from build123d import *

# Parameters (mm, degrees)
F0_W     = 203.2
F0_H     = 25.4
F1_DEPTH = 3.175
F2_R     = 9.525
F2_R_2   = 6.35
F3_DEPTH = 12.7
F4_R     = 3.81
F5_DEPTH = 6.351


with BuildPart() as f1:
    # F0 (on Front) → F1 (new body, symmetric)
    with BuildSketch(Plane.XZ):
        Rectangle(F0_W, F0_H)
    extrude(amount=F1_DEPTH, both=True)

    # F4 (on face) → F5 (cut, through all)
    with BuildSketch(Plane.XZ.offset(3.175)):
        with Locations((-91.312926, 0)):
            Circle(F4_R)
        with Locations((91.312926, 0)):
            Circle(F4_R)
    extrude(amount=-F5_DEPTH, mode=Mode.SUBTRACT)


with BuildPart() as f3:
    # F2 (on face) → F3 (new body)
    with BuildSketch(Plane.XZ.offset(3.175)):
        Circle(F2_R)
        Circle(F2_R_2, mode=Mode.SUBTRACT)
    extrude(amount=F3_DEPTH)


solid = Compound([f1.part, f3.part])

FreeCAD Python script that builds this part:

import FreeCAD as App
import Part
import Sketcher
from FreeCAD import Vector
Q = App.Units.Quantity


def add_polygon(sketch, points):
    """Adds a closed chain of lines whose ends are joined by coincident constraints."""
    first, n = sketch.GeometryCount, len(points)
    for a, b in zip(points, points[1:] + points[:1]):
        sketch.addGeometry(Part.LineSegment(App.Vector(*a, 0), App.Vector(*b, 0)), False)
    for i in range(n):
        sketch.addConstraint(Sketcher.Constraint("Coincident", first + i, 2, first + (i + 1) % n, 1))

doc = App.newDocument("Part")
body = doc.addObject("PartDesign::Body", "Body")

# Sketch on XZ plane
sketch1 = doc.addObject("Sketcher::SketchObject", "Sketch")
body.addObject(sketch1)
sketch1.AttachmentSupport = (doc.XZ_Plane, [""])
sketch1.MapMode = "FlatFace"
add_polygon(sketch1, [(-102, 13), (-102, -13), (102, -13), (102, 13)])  # lines 0-3
sketch1.addConstraint([
    Sketcher.Constraint("Vertical", 0),
    Sketcher.Constraint("Horizontal", 1),
    Sketcher.Constraint("Vertical", 2),
    Sketcher.Constraint("Horizontal", 3),
    Sketcher.Constraint("Symmetric", 0, 2, 2, 2, -1, 1),
    Sketcher.Constraint("DistanceX", 1, 1, 1, 2, Q("8 in")),
    Sketcher.Constraint("DistanceY", 0, 2, 0, 1, Q("1 in")),
])
pad1 = doc.addObject("PartDesign::Pad", "Pad")
body.addObject(pad1)
pad1.Profile = sketch1
pad1.Length = Q("0.25 in")
pad1.Midplane = True

# Sketch on XZ plane
sketch2 = doc.addObject("Sketcher::SketchObject", "Sketch001")
body.addObject(sketch2)
sketch2.AttachmentSupport = (doc.XZ_Plane, [""])
sketch2.MapMode = "FlatFace"
sketch2.AttachmentOffset = App.Placement(Vector(0, 0, 0.125 * 25.4), App.Rotation())
sketch2.addGeometry([
    Part.Circle(Vector(-91.3, 0, 0), Vector(0, 0, 1), 3.8),
    Part.Circle(Vector(91.3, 0, 0), Vector(0, 0, 1), 3.8),
], False)
sketch2.addConstraint([
    Sketcher.Constraint("Equal", 0, 1),
    Sketcher.Constraint("Symmetric", 0, 3, 1, 3, -1, 1),
    Sketcher.Constraint("PointOnObject", 0, 3, -1),
    Sketcher.Constraint("Diameter", 0, Q("0.3 in")),
    Sketcher.Constraint("DistanceX", 0, 3, 1, 3, 182.625852),
])
pocket1 = doc.addObject("PartDesign::Pocket", "Pocket")
body.addObject(pocket1)
pocket1.Profile = sketch2
pocket1.Type = "ThroughAll"
body2 = doc.addObject("PartDesign::Body", "Body001")

# Sketch on XZ plane
sketch3 = doc.addObject("Sketcher::SketchObject", "Sketch002")
body2.addObject(sketch3)
sketch3.AttachmentSupport = (doc.getObject("XZ_Plane001"), [""])
sketch3.MapMode = "FlatFace"
sketch3.AttachmentOffset = App.Placement(Vector(0, 0, 0.125 * 25.4), App.Rotation())
sketch3.addGeometry([
    Part.Circle(Vector(0, 0, 0), Vector(0, 0, 1), 10),
    Part.Circle(Vector(0, 0, 0), Vector(0, 0, 1), 6),
], False)
sketch3.addConstraint([
    Sketcher.Constraint("Coincident", 0, 3, -1, 1),
    Sketcher.Constraint("Coincident", 1, 3, -1, 1),
    Sketcher.Constraint("Diameter", 1, Q("0.5 in")),
    Sketcher.Constraint("Diameter", 0, Q("0.75 in")),
])
pad2 = doc.addObject("PartDesign::Pad", "Pad001")
body2.addObject(pad2)
pad2.Profile = sketch3
pad2.Length = Q("0.5 in")

doc.recompute()
